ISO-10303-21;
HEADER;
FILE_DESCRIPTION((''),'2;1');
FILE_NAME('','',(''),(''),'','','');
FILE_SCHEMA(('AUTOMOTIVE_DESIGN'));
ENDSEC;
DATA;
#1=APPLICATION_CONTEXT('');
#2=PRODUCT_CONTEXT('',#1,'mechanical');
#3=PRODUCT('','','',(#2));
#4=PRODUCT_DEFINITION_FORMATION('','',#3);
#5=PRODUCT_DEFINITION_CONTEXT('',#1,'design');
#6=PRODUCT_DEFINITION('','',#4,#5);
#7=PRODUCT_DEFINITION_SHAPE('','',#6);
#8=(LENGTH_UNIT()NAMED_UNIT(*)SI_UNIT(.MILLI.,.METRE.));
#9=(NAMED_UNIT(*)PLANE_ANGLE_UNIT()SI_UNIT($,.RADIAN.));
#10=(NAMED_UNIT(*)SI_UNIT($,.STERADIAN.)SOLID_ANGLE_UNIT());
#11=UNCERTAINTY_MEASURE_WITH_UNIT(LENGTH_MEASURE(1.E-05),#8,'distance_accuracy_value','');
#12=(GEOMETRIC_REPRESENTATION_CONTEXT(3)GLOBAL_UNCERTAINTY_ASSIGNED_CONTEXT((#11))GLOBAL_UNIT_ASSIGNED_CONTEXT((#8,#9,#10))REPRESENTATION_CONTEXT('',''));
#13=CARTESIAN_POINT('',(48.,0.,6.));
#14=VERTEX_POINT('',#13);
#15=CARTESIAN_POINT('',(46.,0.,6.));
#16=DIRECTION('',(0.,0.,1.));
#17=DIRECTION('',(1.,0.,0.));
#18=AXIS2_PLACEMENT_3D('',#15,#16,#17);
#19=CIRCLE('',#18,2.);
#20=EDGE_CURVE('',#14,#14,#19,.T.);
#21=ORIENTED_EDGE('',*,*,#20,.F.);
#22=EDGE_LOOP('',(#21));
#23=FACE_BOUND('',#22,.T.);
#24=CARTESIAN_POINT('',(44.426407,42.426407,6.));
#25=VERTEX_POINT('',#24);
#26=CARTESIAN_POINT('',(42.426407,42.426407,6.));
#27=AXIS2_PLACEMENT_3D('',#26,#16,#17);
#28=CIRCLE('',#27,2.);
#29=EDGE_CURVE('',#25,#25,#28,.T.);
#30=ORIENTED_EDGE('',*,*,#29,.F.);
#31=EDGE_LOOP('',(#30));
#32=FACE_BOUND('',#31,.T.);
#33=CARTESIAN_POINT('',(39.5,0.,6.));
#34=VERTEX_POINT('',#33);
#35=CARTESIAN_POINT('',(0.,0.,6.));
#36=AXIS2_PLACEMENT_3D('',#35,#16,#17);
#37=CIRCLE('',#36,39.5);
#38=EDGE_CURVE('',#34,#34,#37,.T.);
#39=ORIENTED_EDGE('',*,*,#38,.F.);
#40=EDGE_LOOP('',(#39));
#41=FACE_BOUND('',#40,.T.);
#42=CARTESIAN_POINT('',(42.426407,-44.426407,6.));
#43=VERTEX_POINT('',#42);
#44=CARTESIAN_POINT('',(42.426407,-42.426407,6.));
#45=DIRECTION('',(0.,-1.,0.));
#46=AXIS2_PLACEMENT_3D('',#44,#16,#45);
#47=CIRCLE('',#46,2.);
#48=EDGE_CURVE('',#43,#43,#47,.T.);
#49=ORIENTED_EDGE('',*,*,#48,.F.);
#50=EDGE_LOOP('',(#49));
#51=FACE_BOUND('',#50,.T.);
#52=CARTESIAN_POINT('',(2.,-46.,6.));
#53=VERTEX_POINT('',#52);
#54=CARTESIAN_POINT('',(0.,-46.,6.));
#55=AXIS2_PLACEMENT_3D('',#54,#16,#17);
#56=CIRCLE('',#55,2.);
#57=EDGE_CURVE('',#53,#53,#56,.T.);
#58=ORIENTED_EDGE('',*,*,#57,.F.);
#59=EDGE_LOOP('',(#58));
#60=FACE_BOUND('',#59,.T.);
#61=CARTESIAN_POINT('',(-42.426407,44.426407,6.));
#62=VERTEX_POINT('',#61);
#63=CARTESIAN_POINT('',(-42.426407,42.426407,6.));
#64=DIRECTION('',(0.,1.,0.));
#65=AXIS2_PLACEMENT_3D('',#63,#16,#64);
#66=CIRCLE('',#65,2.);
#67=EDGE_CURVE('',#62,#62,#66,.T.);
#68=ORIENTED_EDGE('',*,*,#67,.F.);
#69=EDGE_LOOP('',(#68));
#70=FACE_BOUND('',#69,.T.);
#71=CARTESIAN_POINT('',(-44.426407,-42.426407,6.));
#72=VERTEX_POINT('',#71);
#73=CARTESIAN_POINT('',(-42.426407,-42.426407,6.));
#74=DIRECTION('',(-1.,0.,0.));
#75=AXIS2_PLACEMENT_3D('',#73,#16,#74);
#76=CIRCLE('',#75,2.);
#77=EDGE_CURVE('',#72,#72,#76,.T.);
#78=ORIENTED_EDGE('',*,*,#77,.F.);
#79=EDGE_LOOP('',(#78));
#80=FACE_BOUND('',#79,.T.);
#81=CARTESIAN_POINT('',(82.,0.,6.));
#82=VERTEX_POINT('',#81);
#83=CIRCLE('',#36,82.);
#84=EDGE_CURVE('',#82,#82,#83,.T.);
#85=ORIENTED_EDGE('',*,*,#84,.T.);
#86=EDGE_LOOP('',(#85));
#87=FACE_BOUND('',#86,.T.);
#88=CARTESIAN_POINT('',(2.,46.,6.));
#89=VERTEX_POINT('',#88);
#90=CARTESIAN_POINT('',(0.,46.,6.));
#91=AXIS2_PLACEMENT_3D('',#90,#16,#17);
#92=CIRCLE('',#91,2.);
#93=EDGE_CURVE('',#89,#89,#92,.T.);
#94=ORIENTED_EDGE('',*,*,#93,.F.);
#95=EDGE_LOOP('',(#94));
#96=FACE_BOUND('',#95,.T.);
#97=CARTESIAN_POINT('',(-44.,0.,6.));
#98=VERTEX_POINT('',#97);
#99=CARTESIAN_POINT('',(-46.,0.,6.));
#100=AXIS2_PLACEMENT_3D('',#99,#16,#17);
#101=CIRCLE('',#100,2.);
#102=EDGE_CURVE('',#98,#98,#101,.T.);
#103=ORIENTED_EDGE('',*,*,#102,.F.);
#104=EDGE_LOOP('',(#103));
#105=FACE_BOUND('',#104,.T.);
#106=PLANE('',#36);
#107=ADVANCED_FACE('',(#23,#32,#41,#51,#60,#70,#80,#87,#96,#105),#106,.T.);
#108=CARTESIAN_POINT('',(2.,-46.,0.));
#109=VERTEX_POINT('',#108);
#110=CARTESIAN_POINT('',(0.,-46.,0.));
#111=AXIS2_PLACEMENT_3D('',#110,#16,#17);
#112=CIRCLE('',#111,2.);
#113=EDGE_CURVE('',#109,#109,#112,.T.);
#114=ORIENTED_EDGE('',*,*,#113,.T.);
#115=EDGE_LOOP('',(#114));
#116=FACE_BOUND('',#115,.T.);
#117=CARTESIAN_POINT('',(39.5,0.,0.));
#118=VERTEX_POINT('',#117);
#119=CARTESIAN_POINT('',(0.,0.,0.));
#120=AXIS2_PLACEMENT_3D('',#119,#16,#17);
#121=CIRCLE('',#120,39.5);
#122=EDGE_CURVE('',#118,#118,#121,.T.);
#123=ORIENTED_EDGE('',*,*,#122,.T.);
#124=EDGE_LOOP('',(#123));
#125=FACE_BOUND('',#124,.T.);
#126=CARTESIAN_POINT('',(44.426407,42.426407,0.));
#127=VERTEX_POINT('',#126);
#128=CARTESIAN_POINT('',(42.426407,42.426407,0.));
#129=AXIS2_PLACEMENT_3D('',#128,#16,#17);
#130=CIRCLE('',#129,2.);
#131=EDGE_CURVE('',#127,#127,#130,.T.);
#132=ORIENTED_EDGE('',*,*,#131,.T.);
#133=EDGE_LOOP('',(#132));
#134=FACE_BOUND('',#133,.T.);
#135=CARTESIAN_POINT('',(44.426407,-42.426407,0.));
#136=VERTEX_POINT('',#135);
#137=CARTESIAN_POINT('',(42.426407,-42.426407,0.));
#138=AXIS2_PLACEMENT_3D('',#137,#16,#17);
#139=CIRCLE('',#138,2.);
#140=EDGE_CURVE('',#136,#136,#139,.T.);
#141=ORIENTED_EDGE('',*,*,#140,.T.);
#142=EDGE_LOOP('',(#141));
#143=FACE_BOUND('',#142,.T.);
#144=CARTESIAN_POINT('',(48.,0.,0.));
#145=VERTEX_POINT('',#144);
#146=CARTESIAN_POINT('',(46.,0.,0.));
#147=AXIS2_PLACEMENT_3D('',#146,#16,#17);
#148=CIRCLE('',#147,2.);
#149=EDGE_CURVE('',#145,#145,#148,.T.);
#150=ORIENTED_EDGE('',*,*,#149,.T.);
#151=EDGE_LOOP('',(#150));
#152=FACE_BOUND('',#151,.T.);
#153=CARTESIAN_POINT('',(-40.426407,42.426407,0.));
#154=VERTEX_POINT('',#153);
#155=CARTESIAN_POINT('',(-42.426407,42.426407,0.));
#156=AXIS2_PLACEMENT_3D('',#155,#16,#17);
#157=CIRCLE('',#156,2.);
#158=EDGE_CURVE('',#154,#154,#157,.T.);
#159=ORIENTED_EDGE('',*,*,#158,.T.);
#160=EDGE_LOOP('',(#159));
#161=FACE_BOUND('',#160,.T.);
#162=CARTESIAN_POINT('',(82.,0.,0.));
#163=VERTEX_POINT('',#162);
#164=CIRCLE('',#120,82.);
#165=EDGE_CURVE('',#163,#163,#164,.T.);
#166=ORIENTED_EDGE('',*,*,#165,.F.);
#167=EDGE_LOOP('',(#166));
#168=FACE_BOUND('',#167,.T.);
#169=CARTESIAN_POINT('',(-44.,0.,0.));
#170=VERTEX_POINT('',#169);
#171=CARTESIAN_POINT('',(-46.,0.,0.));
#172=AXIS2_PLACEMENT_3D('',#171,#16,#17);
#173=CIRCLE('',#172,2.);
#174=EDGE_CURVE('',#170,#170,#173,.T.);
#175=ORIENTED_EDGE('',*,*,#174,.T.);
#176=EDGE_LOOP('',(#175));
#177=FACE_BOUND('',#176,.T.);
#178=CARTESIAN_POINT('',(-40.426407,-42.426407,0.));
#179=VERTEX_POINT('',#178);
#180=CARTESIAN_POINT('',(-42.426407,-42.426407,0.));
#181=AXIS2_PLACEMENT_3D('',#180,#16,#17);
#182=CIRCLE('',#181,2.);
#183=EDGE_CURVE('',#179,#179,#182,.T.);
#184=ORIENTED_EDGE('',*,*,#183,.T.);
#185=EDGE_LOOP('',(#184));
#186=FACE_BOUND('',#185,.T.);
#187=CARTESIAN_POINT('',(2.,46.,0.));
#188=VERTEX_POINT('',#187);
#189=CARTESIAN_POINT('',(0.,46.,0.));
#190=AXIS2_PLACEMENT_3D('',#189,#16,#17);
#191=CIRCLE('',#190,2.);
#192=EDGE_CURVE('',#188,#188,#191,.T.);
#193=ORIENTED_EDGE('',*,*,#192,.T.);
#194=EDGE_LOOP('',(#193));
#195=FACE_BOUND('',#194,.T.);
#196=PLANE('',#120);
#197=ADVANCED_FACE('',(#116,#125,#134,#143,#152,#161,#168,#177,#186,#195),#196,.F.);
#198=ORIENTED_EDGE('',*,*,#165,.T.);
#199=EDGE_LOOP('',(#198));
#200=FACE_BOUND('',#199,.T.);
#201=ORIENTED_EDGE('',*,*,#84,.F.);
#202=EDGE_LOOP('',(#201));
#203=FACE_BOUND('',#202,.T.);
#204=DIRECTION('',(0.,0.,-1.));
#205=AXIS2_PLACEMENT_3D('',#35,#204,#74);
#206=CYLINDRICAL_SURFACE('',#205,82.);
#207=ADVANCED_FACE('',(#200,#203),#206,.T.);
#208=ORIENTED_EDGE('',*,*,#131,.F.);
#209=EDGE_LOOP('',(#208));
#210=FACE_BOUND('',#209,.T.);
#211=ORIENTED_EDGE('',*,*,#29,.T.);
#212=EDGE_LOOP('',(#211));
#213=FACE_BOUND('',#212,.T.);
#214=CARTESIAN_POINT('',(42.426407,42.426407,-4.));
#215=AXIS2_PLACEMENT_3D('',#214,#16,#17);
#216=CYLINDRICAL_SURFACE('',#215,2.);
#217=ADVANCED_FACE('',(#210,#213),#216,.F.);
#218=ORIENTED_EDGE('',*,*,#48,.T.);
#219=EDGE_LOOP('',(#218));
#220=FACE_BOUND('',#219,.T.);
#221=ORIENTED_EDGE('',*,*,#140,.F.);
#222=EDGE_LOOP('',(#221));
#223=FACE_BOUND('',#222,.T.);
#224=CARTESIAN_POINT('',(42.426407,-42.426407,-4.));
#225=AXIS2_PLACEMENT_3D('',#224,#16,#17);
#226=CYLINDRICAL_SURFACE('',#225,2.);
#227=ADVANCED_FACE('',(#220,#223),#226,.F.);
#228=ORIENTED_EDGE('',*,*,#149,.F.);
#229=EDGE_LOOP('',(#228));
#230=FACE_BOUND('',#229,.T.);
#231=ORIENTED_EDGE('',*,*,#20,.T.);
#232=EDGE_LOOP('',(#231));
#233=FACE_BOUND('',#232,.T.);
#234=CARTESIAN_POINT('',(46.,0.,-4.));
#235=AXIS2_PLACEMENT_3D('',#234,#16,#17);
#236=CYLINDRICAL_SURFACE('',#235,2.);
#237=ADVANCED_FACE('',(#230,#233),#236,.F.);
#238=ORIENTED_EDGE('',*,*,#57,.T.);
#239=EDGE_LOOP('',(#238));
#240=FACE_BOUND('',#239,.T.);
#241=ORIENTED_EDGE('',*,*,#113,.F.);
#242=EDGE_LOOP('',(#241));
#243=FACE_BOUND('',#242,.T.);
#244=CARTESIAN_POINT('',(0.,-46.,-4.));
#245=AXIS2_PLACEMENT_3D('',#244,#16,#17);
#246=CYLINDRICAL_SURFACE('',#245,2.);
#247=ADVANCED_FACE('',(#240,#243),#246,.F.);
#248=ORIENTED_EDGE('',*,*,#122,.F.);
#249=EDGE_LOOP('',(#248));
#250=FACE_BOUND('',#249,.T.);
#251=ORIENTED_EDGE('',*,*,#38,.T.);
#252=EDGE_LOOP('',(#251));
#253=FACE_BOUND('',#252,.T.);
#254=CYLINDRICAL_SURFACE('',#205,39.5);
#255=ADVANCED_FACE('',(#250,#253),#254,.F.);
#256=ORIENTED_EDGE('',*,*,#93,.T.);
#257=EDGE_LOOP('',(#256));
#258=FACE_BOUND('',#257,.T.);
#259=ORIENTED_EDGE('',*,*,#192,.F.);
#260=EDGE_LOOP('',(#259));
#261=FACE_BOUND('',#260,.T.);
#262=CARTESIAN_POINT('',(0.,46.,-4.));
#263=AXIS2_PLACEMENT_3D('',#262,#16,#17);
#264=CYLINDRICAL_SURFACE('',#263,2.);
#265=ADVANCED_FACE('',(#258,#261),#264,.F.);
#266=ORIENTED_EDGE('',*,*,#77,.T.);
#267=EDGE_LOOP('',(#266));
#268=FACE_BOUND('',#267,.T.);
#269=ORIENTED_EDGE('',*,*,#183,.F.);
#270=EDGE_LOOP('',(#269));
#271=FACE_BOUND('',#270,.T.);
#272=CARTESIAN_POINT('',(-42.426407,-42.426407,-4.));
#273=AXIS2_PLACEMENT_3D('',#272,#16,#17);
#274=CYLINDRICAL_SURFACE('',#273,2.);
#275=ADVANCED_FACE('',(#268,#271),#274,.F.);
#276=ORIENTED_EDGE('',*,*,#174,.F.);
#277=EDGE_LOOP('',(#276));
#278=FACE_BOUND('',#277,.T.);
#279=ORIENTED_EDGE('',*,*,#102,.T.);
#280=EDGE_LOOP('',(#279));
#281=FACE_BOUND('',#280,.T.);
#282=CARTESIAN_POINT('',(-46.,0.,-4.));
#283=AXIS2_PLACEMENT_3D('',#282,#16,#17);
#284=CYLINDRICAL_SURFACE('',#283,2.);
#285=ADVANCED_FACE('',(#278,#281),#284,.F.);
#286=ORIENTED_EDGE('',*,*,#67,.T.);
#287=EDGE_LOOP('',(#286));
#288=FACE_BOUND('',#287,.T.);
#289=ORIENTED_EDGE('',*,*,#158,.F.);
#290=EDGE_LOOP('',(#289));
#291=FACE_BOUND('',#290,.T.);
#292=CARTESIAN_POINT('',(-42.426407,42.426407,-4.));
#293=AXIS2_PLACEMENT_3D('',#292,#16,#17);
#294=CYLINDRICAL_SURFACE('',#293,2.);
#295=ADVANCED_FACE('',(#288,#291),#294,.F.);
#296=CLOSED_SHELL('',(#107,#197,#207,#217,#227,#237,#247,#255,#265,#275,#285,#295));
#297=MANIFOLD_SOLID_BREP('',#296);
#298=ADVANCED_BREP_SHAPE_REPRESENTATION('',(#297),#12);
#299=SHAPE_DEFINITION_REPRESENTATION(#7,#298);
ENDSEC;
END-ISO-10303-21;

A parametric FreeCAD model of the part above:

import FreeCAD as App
import Part
import Sketcher
Q = App.Units.Quantity

doc = App.newDocument("Part")
body = doc.addObject("PartDesign::Body", "Body")

sketch1 = body.newObject("Sketcher::SketchObject", "Sketch")
sketch1.AttachmentSupport = (doc.getObject("XY_Plane"), [""])
sketch1.MapMode = "FlatFace"
sketch1.addGeometry([
    Part.Circle(App.Vector(0, 0, 0), App.Vector(0, 0, 1), 82),
    Part.Circle(App.Vector(0, 0, 0), App.Vector(0, 0, 1), 40),
], False)
sketch1.addConstraint([
    Sketcher.Constraint("Coincident", 0, 3, -1, 1),
    Sketcher.Constraint("Coincident", 1, 3, -1, 1),
    Sketcher.Constraint("Diameter", 0, Q("164 mm")),
    Sketcher.Constraint("Diameter", 1, Q("79 mm")),
])
pad1 = body.newObject("PartDesign::Pad", "Pad")
pad1.Profile = sketch1
pad1.Length = 6

sketch2 = body.newObject("Sketcher::SketchObject", "Sketch001")
sketch2.AttachmentSupport = (doc.getObject("XY_Plane"), [""])
sketch2.MapMode = "FlatFace"
sketch2.AttachmentOffset = App.Placement(App.Vector(0, 0, 6), App.Rotation())
sketch2.addGeometry(Part.Circle(App.Vector(42.4, 42.4, 0), App.Vector(0, 0, 1), 2), False)
sketch2.addConstraint([
    Sketcher.Constraint("Diameter", 0, Q("4 mm")),
    Sketcher.Constraint("DistanceX", -1, 1, 0, 3, Q("42.426407 mm")),
    Sketcher.Constraint("DistanceY", -1, 1, 0, 3, Q("42.426407 mm")),
])
pocket1 = body.newObject("PartDesign::Pocket", "Pocket")
pocket1.Profile = sketch2
pocket1.Length = 10
doc.recompute()

polarpattern = body.newObject("PartDesign::PolarPattern", "PolarPattern")
polarpattern.Originals = [pocket1]
polarpattern.Axis = (doc.getObject("Z_Axis"), [""])
polarpattern.Angle = 360
polarpattern.Occurrences = 4
body.Tip = polarpattern

sketch3 = body.newObject("Sketcher::SketchObject", "Sketch002")
sketch3.AttachmentSupport = (doc.getObject("XY_Plane"), [""])
sketch3.MapMode = "FlatFace"
sketch3.AttachmentOffset = App.Placement(App.Vector(0, 0, 6), App.Rotation())
sketch3.addGeometry([
    Part.Circle(App.Vector(0, 46, 0), App.Vector(0, 0, 1), 2),
    Part.Circle(App.Vector(46, 0, 0), App.Vector(0, 0, 1), 2),
    Part.Circle(App.Vector(0, -46, 0), App.Vector(0, 0, 1), 2),
    Part.Circle(App.Vector(-46, 0, 0), App.Vector(0, 0, 1), 2),
], False)
sketch3.addConstraint([
    Sketcher.Constraint("Equal", 0, 1),
    Sketcher.Constraint("Equal", 1, 2),
    Sketcher.Constraint("Equal", 2, 3),
    Sketcher.Constraint("Symmetric", 0, 3, 2, 3, -1, 1),
    Sketcher.Constraint("Symmetric", 1, 3, 3, 3, -1, 1),
    Sketcher.Constraint("PointOnObject", 0, 3, -2),
    Sketcher.Constraint("PointOnObject", 1, 3, -1),
    Sketcher.Constraint("Diameter", 0, Q("4 mm")),
    Sketcher.Constraint("DistanceY", -1, 1, 0, 3, Q("46 mm")),
    Sketcher.Constraint("DistanceX", -1, 1, 1, 3, Q("46 mm")),
])
pocket2 = body.newObject("PartDesign::Pocket", "Pocket001")
pocket2.Profile = sketch3
pocket2.Length = 10

doc.recompute()
